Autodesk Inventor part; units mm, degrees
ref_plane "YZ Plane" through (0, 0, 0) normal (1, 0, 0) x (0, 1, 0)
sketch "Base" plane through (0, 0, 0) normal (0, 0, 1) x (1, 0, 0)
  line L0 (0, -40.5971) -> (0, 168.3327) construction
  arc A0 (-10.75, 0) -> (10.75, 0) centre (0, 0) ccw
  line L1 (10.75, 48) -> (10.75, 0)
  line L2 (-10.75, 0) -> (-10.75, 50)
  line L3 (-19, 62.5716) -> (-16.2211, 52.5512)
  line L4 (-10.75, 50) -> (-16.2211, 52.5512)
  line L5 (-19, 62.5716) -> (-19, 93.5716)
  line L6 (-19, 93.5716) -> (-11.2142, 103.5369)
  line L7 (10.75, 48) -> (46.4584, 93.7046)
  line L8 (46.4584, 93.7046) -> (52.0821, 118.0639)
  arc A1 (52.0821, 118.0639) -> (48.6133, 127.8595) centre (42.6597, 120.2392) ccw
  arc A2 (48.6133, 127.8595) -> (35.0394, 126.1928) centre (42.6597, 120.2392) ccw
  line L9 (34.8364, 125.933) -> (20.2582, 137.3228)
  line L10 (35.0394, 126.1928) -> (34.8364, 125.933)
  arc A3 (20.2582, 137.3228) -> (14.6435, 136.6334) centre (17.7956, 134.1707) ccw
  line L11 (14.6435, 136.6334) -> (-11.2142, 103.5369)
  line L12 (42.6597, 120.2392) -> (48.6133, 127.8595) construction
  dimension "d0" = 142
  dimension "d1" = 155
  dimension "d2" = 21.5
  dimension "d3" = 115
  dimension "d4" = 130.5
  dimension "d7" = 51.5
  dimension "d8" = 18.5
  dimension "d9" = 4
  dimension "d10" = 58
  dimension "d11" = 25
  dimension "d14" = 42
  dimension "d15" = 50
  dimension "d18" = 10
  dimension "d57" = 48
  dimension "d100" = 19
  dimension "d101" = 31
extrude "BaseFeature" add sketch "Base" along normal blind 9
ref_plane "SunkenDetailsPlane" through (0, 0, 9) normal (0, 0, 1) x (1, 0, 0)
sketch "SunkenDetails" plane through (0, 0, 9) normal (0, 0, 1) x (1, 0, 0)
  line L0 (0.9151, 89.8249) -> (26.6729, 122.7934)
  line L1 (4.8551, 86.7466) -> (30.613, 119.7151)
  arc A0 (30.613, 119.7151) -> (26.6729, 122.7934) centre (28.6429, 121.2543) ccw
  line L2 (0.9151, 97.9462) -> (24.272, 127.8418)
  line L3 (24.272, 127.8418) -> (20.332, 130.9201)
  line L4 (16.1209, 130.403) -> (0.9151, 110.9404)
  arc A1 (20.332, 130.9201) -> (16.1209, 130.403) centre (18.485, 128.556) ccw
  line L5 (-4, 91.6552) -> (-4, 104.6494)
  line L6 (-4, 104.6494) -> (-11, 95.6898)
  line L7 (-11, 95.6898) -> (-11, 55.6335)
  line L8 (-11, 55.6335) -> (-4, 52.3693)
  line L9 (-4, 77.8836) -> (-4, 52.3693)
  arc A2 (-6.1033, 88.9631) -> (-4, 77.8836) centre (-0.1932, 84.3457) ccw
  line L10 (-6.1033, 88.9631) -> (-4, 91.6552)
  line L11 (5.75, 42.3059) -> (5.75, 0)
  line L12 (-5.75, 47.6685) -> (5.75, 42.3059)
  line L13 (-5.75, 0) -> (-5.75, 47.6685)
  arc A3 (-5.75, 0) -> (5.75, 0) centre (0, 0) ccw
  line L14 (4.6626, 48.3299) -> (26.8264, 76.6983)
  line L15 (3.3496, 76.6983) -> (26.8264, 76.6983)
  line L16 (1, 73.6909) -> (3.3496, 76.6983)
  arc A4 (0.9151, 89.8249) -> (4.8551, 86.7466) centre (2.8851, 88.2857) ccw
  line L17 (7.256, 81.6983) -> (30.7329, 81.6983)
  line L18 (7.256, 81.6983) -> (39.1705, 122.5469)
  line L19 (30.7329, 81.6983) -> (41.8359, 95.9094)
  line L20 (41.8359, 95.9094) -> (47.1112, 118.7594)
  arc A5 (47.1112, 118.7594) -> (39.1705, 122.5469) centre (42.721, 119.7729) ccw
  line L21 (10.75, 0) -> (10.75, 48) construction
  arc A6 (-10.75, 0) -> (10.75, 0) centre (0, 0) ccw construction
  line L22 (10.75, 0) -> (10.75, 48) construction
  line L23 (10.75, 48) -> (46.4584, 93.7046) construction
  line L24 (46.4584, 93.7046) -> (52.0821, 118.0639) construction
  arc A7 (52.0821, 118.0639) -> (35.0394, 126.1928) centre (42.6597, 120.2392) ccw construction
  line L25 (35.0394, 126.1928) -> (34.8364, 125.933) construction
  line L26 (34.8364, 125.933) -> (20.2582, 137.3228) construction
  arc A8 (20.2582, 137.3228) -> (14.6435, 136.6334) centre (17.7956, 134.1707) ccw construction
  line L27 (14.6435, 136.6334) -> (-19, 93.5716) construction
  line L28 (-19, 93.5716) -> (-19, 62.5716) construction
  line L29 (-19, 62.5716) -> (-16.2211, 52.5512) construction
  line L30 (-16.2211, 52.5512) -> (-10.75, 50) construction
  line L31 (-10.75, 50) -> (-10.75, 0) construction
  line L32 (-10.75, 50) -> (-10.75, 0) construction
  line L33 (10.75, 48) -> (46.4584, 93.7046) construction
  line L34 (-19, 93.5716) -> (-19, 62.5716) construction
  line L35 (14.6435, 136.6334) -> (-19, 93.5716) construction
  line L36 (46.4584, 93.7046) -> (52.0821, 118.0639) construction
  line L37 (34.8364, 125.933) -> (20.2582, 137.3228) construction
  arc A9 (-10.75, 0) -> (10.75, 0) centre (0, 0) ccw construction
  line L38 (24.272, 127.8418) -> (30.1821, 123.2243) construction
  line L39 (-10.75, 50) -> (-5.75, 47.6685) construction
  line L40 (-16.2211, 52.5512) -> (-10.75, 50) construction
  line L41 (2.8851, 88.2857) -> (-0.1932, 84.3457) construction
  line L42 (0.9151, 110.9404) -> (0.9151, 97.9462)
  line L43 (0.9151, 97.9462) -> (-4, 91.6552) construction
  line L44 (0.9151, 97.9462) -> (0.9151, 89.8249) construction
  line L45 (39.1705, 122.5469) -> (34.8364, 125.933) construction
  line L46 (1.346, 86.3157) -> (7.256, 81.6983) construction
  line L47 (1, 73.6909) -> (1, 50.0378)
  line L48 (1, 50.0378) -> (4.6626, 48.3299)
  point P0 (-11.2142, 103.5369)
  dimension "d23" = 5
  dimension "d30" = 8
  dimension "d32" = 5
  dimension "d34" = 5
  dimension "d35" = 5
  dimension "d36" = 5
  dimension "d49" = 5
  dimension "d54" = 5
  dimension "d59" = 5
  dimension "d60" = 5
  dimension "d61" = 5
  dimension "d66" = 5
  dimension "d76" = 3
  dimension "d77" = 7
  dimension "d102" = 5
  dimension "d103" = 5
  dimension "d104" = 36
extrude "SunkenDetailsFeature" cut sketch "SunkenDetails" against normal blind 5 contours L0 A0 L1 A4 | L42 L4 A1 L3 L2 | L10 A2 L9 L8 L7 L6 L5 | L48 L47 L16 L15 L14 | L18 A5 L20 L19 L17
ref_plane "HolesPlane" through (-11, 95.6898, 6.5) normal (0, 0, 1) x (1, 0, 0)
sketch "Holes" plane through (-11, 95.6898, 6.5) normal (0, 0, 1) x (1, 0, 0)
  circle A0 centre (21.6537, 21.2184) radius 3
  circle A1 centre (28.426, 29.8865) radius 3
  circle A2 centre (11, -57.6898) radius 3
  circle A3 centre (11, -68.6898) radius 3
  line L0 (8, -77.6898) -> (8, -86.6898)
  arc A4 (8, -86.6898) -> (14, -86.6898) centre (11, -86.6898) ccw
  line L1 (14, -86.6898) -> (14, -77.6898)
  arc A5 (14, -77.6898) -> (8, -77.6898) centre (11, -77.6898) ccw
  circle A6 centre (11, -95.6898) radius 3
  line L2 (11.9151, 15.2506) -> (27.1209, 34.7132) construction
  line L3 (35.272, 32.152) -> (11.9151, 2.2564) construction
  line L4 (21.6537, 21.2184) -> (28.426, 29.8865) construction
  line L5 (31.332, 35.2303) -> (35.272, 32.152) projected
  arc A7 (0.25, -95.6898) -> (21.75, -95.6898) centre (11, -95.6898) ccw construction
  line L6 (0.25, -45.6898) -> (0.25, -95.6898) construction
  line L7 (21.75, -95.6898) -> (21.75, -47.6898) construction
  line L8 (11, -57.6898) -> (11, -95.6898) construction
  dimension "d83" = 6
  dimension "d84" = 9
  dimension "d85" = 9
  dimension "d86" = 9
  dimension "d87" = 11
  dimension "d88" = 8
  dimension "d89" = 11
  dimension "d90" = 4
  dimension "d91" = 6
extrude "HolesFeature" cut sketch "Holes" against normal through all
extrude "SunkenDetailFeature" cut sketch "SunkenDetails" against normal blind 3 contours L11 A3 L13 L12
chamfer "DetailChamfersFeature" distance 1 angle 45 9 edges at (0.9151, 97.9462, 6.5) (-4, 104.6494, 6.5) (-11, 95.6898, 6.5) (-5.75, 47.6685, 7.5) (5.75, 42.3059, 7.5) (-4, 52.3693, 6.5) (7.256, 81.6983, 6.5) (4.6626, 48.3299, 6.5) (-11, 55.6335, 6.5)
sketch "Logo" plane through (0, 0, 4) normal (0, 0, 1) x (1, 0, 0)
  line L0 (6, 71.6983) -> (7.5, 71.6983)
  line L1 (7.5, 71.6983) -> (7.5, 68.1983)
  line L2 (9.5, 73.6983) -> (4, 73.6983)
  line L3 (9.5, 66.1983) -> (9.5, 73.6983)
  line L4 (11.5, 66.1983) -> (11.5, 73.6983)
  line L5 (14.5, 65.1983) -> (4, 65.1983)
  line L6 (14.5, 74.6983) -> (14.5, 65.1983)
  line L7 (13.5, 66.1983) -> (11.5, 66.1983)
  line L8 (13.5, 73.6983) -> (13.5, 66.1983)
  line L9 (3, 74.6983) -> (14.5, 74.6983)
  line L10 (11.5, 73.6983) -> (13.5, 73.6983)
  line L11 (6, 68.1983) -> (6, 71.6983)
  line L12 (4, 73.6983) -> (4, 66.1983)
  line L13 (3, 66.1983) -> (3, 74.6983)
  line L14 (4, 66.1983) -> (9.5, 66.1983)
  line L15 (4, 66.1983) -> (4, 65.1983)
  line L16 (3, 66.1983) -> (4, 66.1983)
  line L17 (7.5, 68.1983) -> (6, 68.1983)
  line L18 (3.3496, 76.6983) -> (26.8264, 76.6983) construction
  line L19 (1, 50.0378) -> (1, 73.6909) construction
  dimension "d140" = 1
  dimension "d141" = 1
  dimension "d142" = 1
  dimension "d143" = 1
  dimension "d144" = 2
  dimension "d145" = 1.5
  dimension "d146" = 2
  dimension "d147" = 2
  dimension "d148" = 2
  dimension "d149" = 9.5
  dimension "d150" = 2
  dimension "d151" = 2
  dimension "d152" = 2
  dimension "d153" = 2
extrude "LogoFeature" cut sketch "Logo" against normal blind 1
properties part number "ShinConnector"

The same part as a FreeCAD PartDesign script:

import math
import FreeCAD as App
import Part
import Sketcher
from FreeCAD import Vector
Q = App.Units.Quantity


def edges_at(feature, points):
    """Names of the edges that pass closest to the given points."""
    edges = feature.Shape.Edges
    near = lambda p: min(range(len(edges)), key=lambda i: edges[i].distToShape(Part.Vertex(*p))[0])
    return sorted({f"Edge{near(p) + 1}" for p in points})


def add_polygon(sketch, points):
    """Adds a closed chain of lines whose ends are joined by coincident constraints."""
    first, n = sketch.GeometryCount, len(points)
    for a, b in zip(points, points[1:] + points[:1]):
        sketch.addGeometry(Part.LineSegment(App.Vector(*a, 0), App.Vector(*b, 0)), False)
    for i in range(n):
        sketch.addConstraint(Sketcher.Constraint("Coincident", first + i, 2, first + (i + 1) % n, 1))

doc = App.newDocument("Part")
params = doc.addObject("Spreadsheet::Sheet", "Params")
for row, (alias, value) in enumerate([
    ("sketch1_radius", "4 mm"),
    ("sketch1_height", "50 mm"),
    ("sketch1_height2", "48 mm"),
    ("sketch1_height3", "31 mm"),
    ("sketch1_radius2", "10.75 mm"),
    ("pad1_length", "9 mm"),
    ("sketch2_radius", "3 mm"),
    ("sketch2_radius2", "2.5 mm"),
    ("sketch2_length", "5 mm"),
    ("sketch2_length2", "36 mm"),
    ("sketch2_radius3", "7.5 mm"),
    ("pocket1_length", "5 mm"),
    ("sketch3_diameter", "6 mm"),
    ("sketch3_height", "9 mm"),
    ("sketch4_radius", "5.75 mm"),
    ("pocket3_length", "3 mm"),
    ("chamfer_size", "1 mm"),
    ("sketch5_width", "1 mm"),
    ("sketch5_width2", "2 mm"),
    ("sketch5_width3", "1.5 mm"),
    ("sketch5_height", "9.5 mm"),
    ("pocket4_length", "1 mm"),
], start=1):
    params.set(f"A{row}", alias)
    params.set(f"B{row}", "=" + value)
    params.setAlias(f"B{row}", alias)

body = doc.addObject("PartDesign::Body", "Body")

# Sketch on XY plane
sketch1 = body.newObject("Sketcher::SketchObject", "Sketch")
sketch1.AttachmentSupport = (doc.getObject("XY_Plane"), [""])
sketch1.MapMode = "FlatFace"
sketch1.addGeometry([
    Part.LineSegment(Vector(-10.75, 50, 0), Vector(-10.75, 0, 0)),  # 0
    Part.ArcOfCircle(Part.Circle(Vector(0, 0, 0), Vector(0, 0, 1), 10.75), math.radians(180), math.radians(360)),  # 1
    Part.LineSegment(Vector(10.75, 0, 0), Vector(10.75, 48, 0)),  # 2
    Part.LineSegment(Vector(10.75, 48, 0), Vector(46.46, 93.7, 0)),  # 3
    Part.LineSegment(Vector(46.46, 93.7, 0), Vector(52.08, 118.06, 0)),  # 4
    Part.ArcOfCircle(Part.Circle(Vector(42.66, 120.24, 0), Vector(0, 0, 1), 9.67), math.radians(-13), math.radians(52)),  # 5
    Part.ArcOfCircle(Part.Circle(Vector(42.66, 120.24, 0), Vector(0, 0, 1), 9.67), math.radians(52), math.radians(142)),  # 6
    Part.LineSegment(Vector(35.04, 126.19, 0), Vector(34.84, 125.93, 0)),  # 7
    Part.LineSegment(Vector(34.84, 125.93, 0), Vector(20.26, 137.32, 0)),  # 8
    Part.ArcOfCircle(Part.Circle(Vector(17.8, 134.17, 0), Vector(0, 0, 1), 4), math.radians(52), math.radians(142)),  # 9
    Part.LineSegment(Vector(14.64, 136.63, 0), Vector(-11.21, 103.54, 0)),  # 10
    Part.LineSegment(Vector(-11.21, 103.54, 0), Vector(-19, 93.57, 0)),  # 11
    Part.LineSegment(Vector(-19, 93.57, 0), Vector(-19, 62.57, 0)),  # 12
    Part.LineSegment(Vector(-19, 62.57, 0), Vector(-16.22, 52.55, 0)),  # 13
    Part.LineSegment(Vector(-16.22, 52.55, 0), Vector(-10.75, 50, 0)),  # 14
], False)
sketch1.addConstraint([
    Sketcher.Constraint("Tangent", 0, 2, 1, 1),
    Sketcher.Constraint("Tangent", 1, 2, 2, 1),
    Sketcher.Constraint("Coincident", 2, 2, 3, 1),
    Sketcher.Constraint("Coincident", 3, 2, 4, 1),
    Sketcher.Constraint("Tangent", 4, 2, 5, 1),
    Sketcher.Constraint("Tangent", 5, 2, 6, 1),
    Sketcher.Constraint("Tangent", 6, 2, 7, 1),
    Sketcher.Constraint("Coincident", 7, 2, 8, 1),
    Sketcher.Constraint("Tangent", 8, 2, 9, 1),
    Sketcher.Constraint("Tangent", 9, 2, 10, 1),
    Sketcher.Constraint("Coincident", 10, 2, 11, 1),
    Sketcher.Constraint("Coincident", 11, 2, 12, 1),
    Sketcher.Constraint("Coincident", 12, 2, 13, 1),
    Sketcher.Constraint("Coincident", 13, 2, 14, 1),
    Sketcher.Constraint("Coincident", 14, 2, 0, 1),
    Sketcher.Constraint("Vertical", 0),
    Sketcher.Constraint("Vertical", 2),
    Sketcher.Constraint("Vertical", 12),
    Sketcher.Constraint("Coincident", 1, 3, -1, 1),
    Sketcher.Constraint("Equal", 5, 6),
    Sketcher.Constraint("Parallel", 3, 7),
    Sketcher.Constraint("Perpendicular", 7, 8),
    Sketcher.Constraint("Perpendicular", 8, 10),
    Sketcher.Constraint("Parallel", 10, 11),
    Sketcher.Constraint("Radius", 9, 4.0),
    Sketcher.Constraint("DistanceY", 0, 2, 0, 1, 50.0),
    Sketcher.Constraint("DistanceY", 2, 1, 2, 2, 48.0),
    Sketcher.Constraint("DistanceY", 12, 2, 12, 1, 31.0),
    Sketcher.Constraint("Angle", 8, Q("141.9998 deg")),
    Sketcher.Constraint("Angle", 14, Q("-24.9999 deg")),
    Sketcher.Constraint("Radius", 1, 10.75),
    Sketcher.Constraint("Distance", 3, 58.0),
    Sketcher.Constraint("Distance", 4, 25.0),
    Sketcher.Constraint("Distance", 10, 42.0),
    Sketcher.Constraint("DistanceX", 11, 2, -1, 1, 19.0),
    Sketcher.Constraint("Distance", 8, 18.5),
    Sketcher.Constraint("Angle", 4, Q("77.0002 deg")),
    Sketcher.Constraint("Angle", 13, Q("-74.5 deg")),
    Sketcher.Constraint("Radius", 5, 9.6703),
    Sketcher.Constraint("DistanceY", 6, 2, 8, 2, 11.13),
    Sketcher.Constraint("DistanceX", 3, 2, 5, 2, 2.155),
])
sketch1.setExpression("Constraints[24]", "Params.sketch1_radius")
sketch1.setExpression("Constraints[25]", "Params.sketch1_height")
sketch1.setExpression("Constraints[26]", "Params.sketch1_height2")
sketch1.setExpression("Constraints[27]", "Params.sketch1_height3")
sketch1.setExpression("Constraints[30]", "Params.sketch1_radius2")
pad1 = body.newObject("PartDesign::Pad", "Pad")
pad1.Profile = sketch1
pad1.setExpression("Length", "Params.pad1_length")

# Sketch on XY plane
sketch2 = body.newObject("Sketcher::SketchObject", "Sketch001")
sketch2.AttachmentSupport = (doc.getObject("XY_Plane"), [""])
sketch2.MapMode = "FlatFace"
sketch2.AttachmentOffset = App.Placement(Vector(0, 0, 9), App.Rotation())
sketch2.addGeometry(Part.LineSegment(Vector(26.7, 122.8, 0), Vector(0.9, 89.8, 0)), False)  # 0
sketch2.addGeometry(Part.ArcOfCircle(Part.Circle(Vector(2.9, 88.3, 0), Vector(0, 0, 1), 2.5), math.radians(142), math.radians(322)), False)  # 1
sketch2.addGeometry(Part.LineSegment(Vector(4.9, 86.7, 0), Vector(30.6, 119.7, 0)), False)  # 2
sketch2.addGeometry(Part.ArcOfCircle(Part.Circle(Vector(28.6, 121.3, 0), Vector(0, 0, 1), 2.5), math.radians(-38), math.radians(142)), False)  # 3
sketch2.addGeometry(Part.LineSegment(Vector(0.9, 110.9, 0), Vector(0.9, 97.9, 0)), False)  # 4
sketch2.addGeometry(Part.LineSegment(Vector(0.9, 97.9, 0), Vector(24.3, 127.8, 0)), False)  # 5
sketch2.addGeometry(Part.LineSegment(Vector(24.3, 127.8, 0), Vector(20.3, 130.9, 0)), False)  # 6
sketch2.addGeometry(Part.ArcOfCircle(Part.Circle(Vector(18.5, 128.6, 0), Vector(0, 0, 1), 3), math.radians(52), math.radians(142)), False)  # 7
sketch2.addGeometry(Part.LineSegment(Vector(16.1, 130.4, 0), Vector(0.9, 110.9, 0)), False)  # 8
sketch2.addGeometry(Part.LineSegment(Vector(-6.1, 89, 0), Vector(-4, 91.7, 0)), False)  # 9
sketch2.addGeometry(Part.LineSegment(Vector(-4, 91.7, 0), Vector(-4, 104.6, 0)), False)  # 10
sketch2.addGeometry(Part.LineSegment(Vector(-4, 104.6, 0), Vector(-11, 95.7, 0)), False)  # 11
sketch2.addGeometry(Part.LineSegment(Vector(-11, 95.7, 0), Vector(-11, 55.6, 0)), False)  # 12
sketch2.addGeometry(Part.LineSegment(Vector(-11, 55.6, 0), Vector(-4, 52.4, 0)), False)  # 13
sketch2.addGeometry(Part.LineSegment(Vector(-4, 52.4, 0), Vector(-4, 77.9, 0)), False)  # 14
sketch2.addGeometry(Part.ArcOfCircle(Part.Circle(Vector(-0.2, 84.3, 0), Vector(0, 0, 1), 7.5), math.radians(142), math.radians(239)), False)  # 15
add_polygon(sketch2, [(1, 50), (4.7, 48.3), (26.8, 76.7), (3.3, 76.7), (1, 73.7)])  # lines 16-20
sketch2.addGeometry(Part.LineSegment(Vector(39.2, 122.5, 0), Vector(7.3, 81.7, 0)), False)  # 21
sketch2.addGeometry(Part.LineSegment(Vector(7.3, 81.7, 0), Vector(30.7, 81.7, 0)), False)  # 22
sketch2.addGeometry(Part.LineSegment(Vector(30.7, 81.7, 0), Vector(41.8, 95.9, 0)), False)  # 23
sketch2.addGeometry(Part.LineSegment(Vector(41.8, 95.9, 0), Vector(47.1, 118.8, 0)), False)  # 24
sketch2.addGeometry(Part.ArcOfCircle(Part.Circle(Vector(42.7, 119.8, 0), Vector(0, 0, 1), 4.5), math.radians(-13), math.radians(142)), False)  # 25
sketch2.addConstraint([
    Sketcher.Constraint("Tangent", 0, 2, 1, 1),
    Sketcher.Constraint("Tangent", 1, 2, 2, 1),
    Sketcher.Constraint("Tangent", 2, 2, 3, 1),
    Sketcher.Constraint("Tangent", 3, 2, 0, 1),
    Sketcher.Constraint("Coincident", 4, 2, 5, 1),
    Sketcher.Constraint("Coincident", 5, 2, 6, 1),
    Sketcher.Constraint("Tangent", 6, 2, 7, 1),
    Sketcher.Constraint("Tangent", 7, 2, 8, 1),
    Sketcher.Constraint("Coincident", 8, 2, 4, 1),
    Sketcher.Constraint("Coincident", 9, 2, 10, 1),
    Sketcher.Constraint("Coincident", 10, 2, 11, 1),
    Sketcher.Constraint("Coincident", 11, 2, 12, 1),
    Sketcher.Constraint("Coincident", 12, 2, 13, 1),
    Sketcher.Constraint("Coincident", 13, 2, 14, 1),
    Sketcher.Constraint("Coincident", 14, 2, 15, 2),
    Sketcher.Constraint("Tangent", 15, 1, 9, 1),
    Sketcher.Constraint("Coincident", 21, 2, 22, 1),
    Sketcher.Constraint("Coincident", 22, 2, 23, 1),
    Sketcher.Constraint("Coincident", 23, 2, 24, 1),
    Sketcher.Constraint("Tangent", 24, 2, 25, 1),
    Sketcher.Constraint("Tangent", 25, 2, 21, 1),
    Sketcher.Constraint("Vertical", 4),
    Sketcher.Constraint("Vertical", 10),
    Sketcher.Constraint("Vertical", 12),
    Sketcher.Constraint("Vertical", 14),
    Sketcher.Constraint("Horizontal", 18),
    Sketcher.Constraint("Vertical", 20),
    Sketcher.Constraint("Horizontal", 22),
    Sketcher.Constraint("Equal", 1, 3),
    Sketcher.Constraint("Parallel", 2, 5),
    Sketcher.Constraint("Perpendicular", 5, 6),
    Sketcher.Constraint("Perpendicular", 6, 8),
    Sketcher.Constraint("Parallel", 8, 9),
    Sketcher.Constraint("Parallel", 9, 11),
    Sketcher.Constraint("Parallel", 13, 16),
    Sketcher.Constraint("Parallel", 11, 17),
    Sketcher.Constraint("Parallel", 17, 19),
    Sketcher.Constraint("Parallel", 19, 21),
    Sketcher.Constraint("Parallel", 21, 23),
    Sketcher.Constraint("Vertical", 0, 2, 4, 2),
    Sketcher.Constraint("Vertical", 10, 2, 13, 2),
    Sketcher.Constraint("Equal", 18, 22),
    Sketcher.Constraint("Equal", 4, 10),
    Sketcher.Constraint("Radius", 7, 3.0),
    Sketcher.Constraint("Radius", 1, 2.5),
    Sketcher.Constraint("Distance", 6, 5.0),
    Sketcher.Constraint("Distance", 17, 36.0),
    Sketcher.Constraint("DistanceX", 11, 2, 9, 2, 7.0),
    Sketcher.Constraint("DistanceX", 14, 2, 19, 2, 5.0),
    Sketcher.Constraint("DistanceY", 18, 2, 21, 2, 5.0),
    Sketcher.Constraint("Radius", 15, 7.5),
    Sketcher.Constraint("Angle", 0, Q("-128 deg")),
    Sketcher.Constraint("Angle", 13, Q("-25.0003 deg")),
    Sketcher.Constraint("Angle", 24, Q("77 deg")),
    Sketcher.Constraint("DistanceX", 9, 2, -1, 1, 4.0),
    Sketcher.Constraint("Radius", 25, 4.5057),
    Sketcher.Constraint("DistanceX", 1, 3, 7, 3, 15.6),
    Sketcher.Constraint("DistanceX", 22, 1, 22, 2, 23.477),
    Sketcher.Constraint("DistanceY", 20, 2, 20, 1, 23.653),
    Sketcher.Constraint("DistanceY", -1, 1, 6, 2, 130.92),
    Sketcher.Constraint("DistanceY", -1, 1, 16, 2, 48.33),
    Sketcher.Constraint("DistanceY", 15, 3, 1, 3, 3.94),
    Sketcher.Constraint("DistanceY", 12, 2, 12, 1, 40.0563),
    Sketcher.Constraint("DistanceY", 14, 1, 14, 2, 25.5143),
    Sketcher.Constraint("DistanceX", -1, 1, 1, 3, 2.885),
    Sketcher.Constraint("DistanceX", -1, 1, 3, 3, 28.643),
    Sketcher.Constraint("DistanceX", -1, 1, 25, 3, 42.721),
    Sketcher.Constraint("DistanceY", -1, 1, 25, 3, 119.773),
    Sketcher.Constraint("DistanceY", -1, 1, 0, 2, 89.825),
])
sketch2.setExpression("Constraints[48]", "Params.sketch2_radius")
sketch2.setExpression("Constraints[49]", "Params.sketch2_radius2")
sketch2.setExpression("Constraints[50]", "Params.sketch2_length")
sketch2.setExpression("Constraints[51]", "Params.sketch2_length2")
sketch2.setExpression("Constraints[55]", "Params.sketch2_radius3")
pocket1 = body.newObject("PartDesign::Pocket", "Pocket")
pocket1.Profile = sketch2
pocket1.setExpression("Length", "Params.pocket1_length")

# Sketch on XY plane
sketch3 = body.newObject("Sketcher::SketchObject", "Sketch002")
sketch3.AttachmentSupport = (doc.getObject("XY_Plane"), [""])
sketch3.MapMode = "FlatFace"
sketch3.AttachmentOffset = App.Placement(Vector(0, 0, 6.5), App.Rotation())
sketch3.addGeometry([
    Part.Circle(Vector(10.7, 116.9, 0), Vector(0, 0, 1), 3),  # 0
    Part.Circle(Vector(17.4, 125.6, 0), Vector(0, 0, 1), 3),  # 1
    Part.Circle(Vector(0, 38, 0), Vector(0, 0, 1), 3),  # 2
    Part.Circle(Vector(0, 27, 0), Vector(0, 0, 1), 3),  # 3
    Part.ArcOfCircle(Part.Circle(Vector(0, 18, 0), Vector(0, 0, 1), 3), math.radians(0), math.radians(180)),  # 4
    Part.LineSegment(Vector(-3, 18, 0), Vector(-3, 9, 0)),  # 5
    Part.ArcOfCircle(Part.Circle(Vector(0, 9, 0), Vector(0, 0, 1), 3), math.radians(180), math.radians(360)),  # 6
    Part.LineSegment(Vector(3, 9, 0), Vector(3, 18, 0)),  # 7
    Part.Circle(Vector(0, 0, 0), Vector(0, 0, 1), 3),  # 8
], False)
sketch3.addConstraint([
    Sketcher.Constraint("Tangent", 4, 2, 5, 1),
    Sketcher.Constraint("Tangent", 5, 2, 6, 1),
    Sketcher.Constraint("Tangent", 6, 2, 7, 1),
    Sketcher.Constraint("Tangent", 7, 2, 4, 1),
    Sketcher.Constraint("Vertical", 5),
    Sketcher.Constraint("Vertical", 7),
    Sketcher.Constraint("Coincident", 8, 3, -1, 1),
    Sketcher.Constraint("Equal", 0, 1),
    Sketcher.Constraint("Equal", 1, 2),
    Sketcher.Constraint("Equal", 2, 3),
    Sketcher.Constraint("Equal", 3, 4),
    Sketcher.Constraint("Equal", 6, 8),
    Sketcher.Constraint("PointOnObject", 2, 3, -2),
    Sketcher.Constraint("PointOnObject", 3, 3, -2),
    Sketcher.Constraint("PointOnObject", 4, 3, -2),
    Sketcher.Constraint("Diameter", 0, 6.0),
    Sketcher.Constraint("DistanceY", 5, 2, 5, 1, 9.0),
    Sketcher.Constraint("DistanceY", -1, 1, 6, 3, 9.0),
    Sketcher.Constraint("DistanceY", 3, 3, 2, 3, 11.0),
    Sketcher.Constraint("DistanceY", 4, 3, 3, 3, 9.0),
    Sketcher.Constraint("DistanceX", -1, 1, 1, 3, 17.426),
    Sketcher.Constraint("DistanceY", 0, 3, 1, 3, 8.668),
    Sketcher.Constraint("DistanceX", -1, 1, 0, 3, 10.6537),
    Sketcher.Constraint("DistanceY", -1, 1, 0, 3, 116.9082),
])
sketch3.setExpression("Constraints[15]", "Params.sketch3_diameter")
sketch3.setExpression("Constraints[16]", "Params.sketch3_height")
pocket2 = body.newObject("PartDesign::Pocket", "Pocket001")
pocket2.Profile = sketch3
pocket2.Type = "ThroughAll"

# Sketch on XY plane
sketch4 = body.newObject("Sketcher::SketchObject", "Sketch003")
sketch4.AttachmentSupport = (doc.getObject("XY_Plane"), [""])
sketch4.MapMode = "FlatFace"
sketch4.AttachmentOffset = App.Placement(Vector(0, 0, 9), App.Rotation())
sketch4.addGeometry([
    Part.LineSegment(Vector(6, 0, 0), Vector(6, 42, 0)),
    Part.LineSegment(Vector(6, 42, 0), Vector(-6, 48, 0)),
    Part.LineSegment(Vector(-6, 48, 0), Vector(-6, 0, 0)),
    Part.ArcOfCircle(Part.Circle(Vector(0, 0, 0), Vector(0, 0, 1), 6), math.radians(180), math.radians(360)),
], False)
sketch4.addConstraint([
    Sketcher.Constraint("Coincident", 0, 2, 1, 1),
    Sketcher.Constraint("Coincident", 1, 2, 2, 1),
    Sketcher.Constraint("Tangent", 2, 2, 3, 1),
    Sketcher.Constraint("Tangent", 3, 2, 0, 1),
    Sketcher.Constraint("Vertical", 0),
    Sketcher.Constraint("Vertical", 2),
    Sketcher.Constraint("Coincident", 3, 3, -1, 1),
    Sketcher.Constraint("Angle", 1, Q("154.9997 deg")),
    Sketcher.Constraint("Radius", 3, 5.75),
    Sketcher.Constraint("DistanceY", 0, 1, 0, 2, 42.306),
])
sketch4.setExpression("Constraints[8]", "Params.sketch4_radius")
pocket3 = body.newObject("PartDesign::Pocket", "Pocket002")
pocket3.Profile = sketch4
pocket3.setExpression("Length", "Params.pocket3_length")
doc.recompute()

chamfer = body.newObject("PartDesign::Chamfer", "Chamfer")
chamfer.Base = (pocket3, edges_at(pocket3, [
    (0.915, 97.946, 6.5),
    (-4, 104.649, 6.5),
    (-11, 95.69, 6.5),
    (-5.75, 47.669, 7.5),
    (5.75, 42.306, 7.5),
    (-4, 52.369, 6.5),
    (7.256, 81.698, 6.5),
    (4.663, 48.33, 6.5),
    (-11, 55.633, 6.5),
]))
chamfer.setExpression("Size", "Params.chamfer_size")

# Sketch on XY plane
sketch5 = body.newObject("Sketcher::SketchObject", "Sketch004")
sketch5.AttachmentSupport = (doc.getObject("XY_Plane"), [""])
sketch5.MapMode = "FlatFace"
sketch5.AttachmentOffset = App.Placement(Vector(0, 0, 4), App.Rotation())
add_polygon(sketch5, [(7.5, 71.7), (6, 71.7), (6, 68.2), (7.5, 68.2)])  # lines 0-3
add_polygon(sketch5, [(3, 66.2), (4, 66.2), (4, 65.2), (14.5, 65.2), (14.5, 74.7), (3, 74.7)])  # lines 4-9
add_polygon(sketch5, [(4, 73.7), (9.5, 73.7), (9.5, 66.2), (4, 66.2)])  # lines 10-13
add_polygon(sketch5, [(13.5, 66.2), (11.5, 66.2), (11.5, 73.7), (13.5, 73.7)])  # lines 14-17
sketch5.addConstraint([
    Sketcher.Constraint("Horizontal", 0),
    Sketcher.Constraint("Vertical", 1),
    Sketcher.Constraint("Horizontal", 2),
    Sketcher.Constraint("Vertical", 3),
    Sketcher.Constraint("Horizontal", 4),
    Sketcher.Constraint("Vertical", 5),
    Sketcher.Constraint("Horizontal", 6),
    Sketcher.Constraint("Vertical", 7),
    Sketcher.Constraint("Horizontal", 8),
    Sketcher.Constraint("Vertical", 9),
    Sketcher.Constraint("Horizontal", 10),
    Sketcher.Constraint("Vertical", 11),
    Sketcher.Constraint("Horizontal", 12),
    Sketcher.Constraint("Vertical", 13),
    Sketcher.Constraint("Horizontal", 14),
    Sketcher.Constraint("Vertical", 15),
    Sketcher.Constraint("Horizontal", 16),
    Sketcher.Constraint("Vertical", 17),
    Sketcher.Constraint("Coincident", 12, 2, 4, 2),
    Sketcher.Constraint("Horizontal", 12, 2, 14, 2),
    Sketcher.Constraint("Horizontal", 13, 2, 15, 2),
    Sketcher.Constraint("Equal", 4, 5),
    Sketcher.Constraint("DistanceX", 4, 1, 4, 2, 1.0),
    Sketcher.Constraint("DistanceX", 14, 2, 14, 1, 2.0),
    Sketcher.Constraint("DistanceX", 0, 2, 0, 1, 1.5),
    Sketcher.Constraint("DistanceY", 7, 1, 7, 2, 9.5),
    Sketcher.Constraint("DistanceX", 4, 2, 1, 2, 2.0),
    Sketcher.Constraint("DistanceY", 4, 2, 1, 2, 2.0),
    Sketcher.Constraint("DistanceX", 3, 2, 10, 2, 2.0),
    Sketcher.Constraint("DistanceY", 3, 2, 10, 2, 2.0),
    Sketcher.Constraint("DistanceY", 10, 2, 7, 2, 1.0),
    Sketcher.Constraint("DistanceX", 11, 2, 14, 2, 2.0),
    Sketcher.Constraint("DistanceX", 16, 2, 7, 2, 1.0),
    Sketcher.Constraint("DistanceX", -1, 1, 10, 2, 9.5),
    Sketcher.Constraint("DistanceY", -1, 1, 0, 2, 71.6983),
])
sketch5.setExpression("Constraints[40]", "Params.sketch5_width")
sketch5.setExpression("Constraints[41]", "Params.sketch5_width2")
sketch5.setExpression("Constraints[42]", "Params.sketch5_width3")
sketch5.setExpression("Constraints[43]", "Params.sketch5_height")
pocket4 = body.newObject("PartDesign::Pocket", "Pocket003")
pocket4.Profile = sketch5
pocket4.setExpression("Length", "Params.pocket4_length")

doc.recompute()
